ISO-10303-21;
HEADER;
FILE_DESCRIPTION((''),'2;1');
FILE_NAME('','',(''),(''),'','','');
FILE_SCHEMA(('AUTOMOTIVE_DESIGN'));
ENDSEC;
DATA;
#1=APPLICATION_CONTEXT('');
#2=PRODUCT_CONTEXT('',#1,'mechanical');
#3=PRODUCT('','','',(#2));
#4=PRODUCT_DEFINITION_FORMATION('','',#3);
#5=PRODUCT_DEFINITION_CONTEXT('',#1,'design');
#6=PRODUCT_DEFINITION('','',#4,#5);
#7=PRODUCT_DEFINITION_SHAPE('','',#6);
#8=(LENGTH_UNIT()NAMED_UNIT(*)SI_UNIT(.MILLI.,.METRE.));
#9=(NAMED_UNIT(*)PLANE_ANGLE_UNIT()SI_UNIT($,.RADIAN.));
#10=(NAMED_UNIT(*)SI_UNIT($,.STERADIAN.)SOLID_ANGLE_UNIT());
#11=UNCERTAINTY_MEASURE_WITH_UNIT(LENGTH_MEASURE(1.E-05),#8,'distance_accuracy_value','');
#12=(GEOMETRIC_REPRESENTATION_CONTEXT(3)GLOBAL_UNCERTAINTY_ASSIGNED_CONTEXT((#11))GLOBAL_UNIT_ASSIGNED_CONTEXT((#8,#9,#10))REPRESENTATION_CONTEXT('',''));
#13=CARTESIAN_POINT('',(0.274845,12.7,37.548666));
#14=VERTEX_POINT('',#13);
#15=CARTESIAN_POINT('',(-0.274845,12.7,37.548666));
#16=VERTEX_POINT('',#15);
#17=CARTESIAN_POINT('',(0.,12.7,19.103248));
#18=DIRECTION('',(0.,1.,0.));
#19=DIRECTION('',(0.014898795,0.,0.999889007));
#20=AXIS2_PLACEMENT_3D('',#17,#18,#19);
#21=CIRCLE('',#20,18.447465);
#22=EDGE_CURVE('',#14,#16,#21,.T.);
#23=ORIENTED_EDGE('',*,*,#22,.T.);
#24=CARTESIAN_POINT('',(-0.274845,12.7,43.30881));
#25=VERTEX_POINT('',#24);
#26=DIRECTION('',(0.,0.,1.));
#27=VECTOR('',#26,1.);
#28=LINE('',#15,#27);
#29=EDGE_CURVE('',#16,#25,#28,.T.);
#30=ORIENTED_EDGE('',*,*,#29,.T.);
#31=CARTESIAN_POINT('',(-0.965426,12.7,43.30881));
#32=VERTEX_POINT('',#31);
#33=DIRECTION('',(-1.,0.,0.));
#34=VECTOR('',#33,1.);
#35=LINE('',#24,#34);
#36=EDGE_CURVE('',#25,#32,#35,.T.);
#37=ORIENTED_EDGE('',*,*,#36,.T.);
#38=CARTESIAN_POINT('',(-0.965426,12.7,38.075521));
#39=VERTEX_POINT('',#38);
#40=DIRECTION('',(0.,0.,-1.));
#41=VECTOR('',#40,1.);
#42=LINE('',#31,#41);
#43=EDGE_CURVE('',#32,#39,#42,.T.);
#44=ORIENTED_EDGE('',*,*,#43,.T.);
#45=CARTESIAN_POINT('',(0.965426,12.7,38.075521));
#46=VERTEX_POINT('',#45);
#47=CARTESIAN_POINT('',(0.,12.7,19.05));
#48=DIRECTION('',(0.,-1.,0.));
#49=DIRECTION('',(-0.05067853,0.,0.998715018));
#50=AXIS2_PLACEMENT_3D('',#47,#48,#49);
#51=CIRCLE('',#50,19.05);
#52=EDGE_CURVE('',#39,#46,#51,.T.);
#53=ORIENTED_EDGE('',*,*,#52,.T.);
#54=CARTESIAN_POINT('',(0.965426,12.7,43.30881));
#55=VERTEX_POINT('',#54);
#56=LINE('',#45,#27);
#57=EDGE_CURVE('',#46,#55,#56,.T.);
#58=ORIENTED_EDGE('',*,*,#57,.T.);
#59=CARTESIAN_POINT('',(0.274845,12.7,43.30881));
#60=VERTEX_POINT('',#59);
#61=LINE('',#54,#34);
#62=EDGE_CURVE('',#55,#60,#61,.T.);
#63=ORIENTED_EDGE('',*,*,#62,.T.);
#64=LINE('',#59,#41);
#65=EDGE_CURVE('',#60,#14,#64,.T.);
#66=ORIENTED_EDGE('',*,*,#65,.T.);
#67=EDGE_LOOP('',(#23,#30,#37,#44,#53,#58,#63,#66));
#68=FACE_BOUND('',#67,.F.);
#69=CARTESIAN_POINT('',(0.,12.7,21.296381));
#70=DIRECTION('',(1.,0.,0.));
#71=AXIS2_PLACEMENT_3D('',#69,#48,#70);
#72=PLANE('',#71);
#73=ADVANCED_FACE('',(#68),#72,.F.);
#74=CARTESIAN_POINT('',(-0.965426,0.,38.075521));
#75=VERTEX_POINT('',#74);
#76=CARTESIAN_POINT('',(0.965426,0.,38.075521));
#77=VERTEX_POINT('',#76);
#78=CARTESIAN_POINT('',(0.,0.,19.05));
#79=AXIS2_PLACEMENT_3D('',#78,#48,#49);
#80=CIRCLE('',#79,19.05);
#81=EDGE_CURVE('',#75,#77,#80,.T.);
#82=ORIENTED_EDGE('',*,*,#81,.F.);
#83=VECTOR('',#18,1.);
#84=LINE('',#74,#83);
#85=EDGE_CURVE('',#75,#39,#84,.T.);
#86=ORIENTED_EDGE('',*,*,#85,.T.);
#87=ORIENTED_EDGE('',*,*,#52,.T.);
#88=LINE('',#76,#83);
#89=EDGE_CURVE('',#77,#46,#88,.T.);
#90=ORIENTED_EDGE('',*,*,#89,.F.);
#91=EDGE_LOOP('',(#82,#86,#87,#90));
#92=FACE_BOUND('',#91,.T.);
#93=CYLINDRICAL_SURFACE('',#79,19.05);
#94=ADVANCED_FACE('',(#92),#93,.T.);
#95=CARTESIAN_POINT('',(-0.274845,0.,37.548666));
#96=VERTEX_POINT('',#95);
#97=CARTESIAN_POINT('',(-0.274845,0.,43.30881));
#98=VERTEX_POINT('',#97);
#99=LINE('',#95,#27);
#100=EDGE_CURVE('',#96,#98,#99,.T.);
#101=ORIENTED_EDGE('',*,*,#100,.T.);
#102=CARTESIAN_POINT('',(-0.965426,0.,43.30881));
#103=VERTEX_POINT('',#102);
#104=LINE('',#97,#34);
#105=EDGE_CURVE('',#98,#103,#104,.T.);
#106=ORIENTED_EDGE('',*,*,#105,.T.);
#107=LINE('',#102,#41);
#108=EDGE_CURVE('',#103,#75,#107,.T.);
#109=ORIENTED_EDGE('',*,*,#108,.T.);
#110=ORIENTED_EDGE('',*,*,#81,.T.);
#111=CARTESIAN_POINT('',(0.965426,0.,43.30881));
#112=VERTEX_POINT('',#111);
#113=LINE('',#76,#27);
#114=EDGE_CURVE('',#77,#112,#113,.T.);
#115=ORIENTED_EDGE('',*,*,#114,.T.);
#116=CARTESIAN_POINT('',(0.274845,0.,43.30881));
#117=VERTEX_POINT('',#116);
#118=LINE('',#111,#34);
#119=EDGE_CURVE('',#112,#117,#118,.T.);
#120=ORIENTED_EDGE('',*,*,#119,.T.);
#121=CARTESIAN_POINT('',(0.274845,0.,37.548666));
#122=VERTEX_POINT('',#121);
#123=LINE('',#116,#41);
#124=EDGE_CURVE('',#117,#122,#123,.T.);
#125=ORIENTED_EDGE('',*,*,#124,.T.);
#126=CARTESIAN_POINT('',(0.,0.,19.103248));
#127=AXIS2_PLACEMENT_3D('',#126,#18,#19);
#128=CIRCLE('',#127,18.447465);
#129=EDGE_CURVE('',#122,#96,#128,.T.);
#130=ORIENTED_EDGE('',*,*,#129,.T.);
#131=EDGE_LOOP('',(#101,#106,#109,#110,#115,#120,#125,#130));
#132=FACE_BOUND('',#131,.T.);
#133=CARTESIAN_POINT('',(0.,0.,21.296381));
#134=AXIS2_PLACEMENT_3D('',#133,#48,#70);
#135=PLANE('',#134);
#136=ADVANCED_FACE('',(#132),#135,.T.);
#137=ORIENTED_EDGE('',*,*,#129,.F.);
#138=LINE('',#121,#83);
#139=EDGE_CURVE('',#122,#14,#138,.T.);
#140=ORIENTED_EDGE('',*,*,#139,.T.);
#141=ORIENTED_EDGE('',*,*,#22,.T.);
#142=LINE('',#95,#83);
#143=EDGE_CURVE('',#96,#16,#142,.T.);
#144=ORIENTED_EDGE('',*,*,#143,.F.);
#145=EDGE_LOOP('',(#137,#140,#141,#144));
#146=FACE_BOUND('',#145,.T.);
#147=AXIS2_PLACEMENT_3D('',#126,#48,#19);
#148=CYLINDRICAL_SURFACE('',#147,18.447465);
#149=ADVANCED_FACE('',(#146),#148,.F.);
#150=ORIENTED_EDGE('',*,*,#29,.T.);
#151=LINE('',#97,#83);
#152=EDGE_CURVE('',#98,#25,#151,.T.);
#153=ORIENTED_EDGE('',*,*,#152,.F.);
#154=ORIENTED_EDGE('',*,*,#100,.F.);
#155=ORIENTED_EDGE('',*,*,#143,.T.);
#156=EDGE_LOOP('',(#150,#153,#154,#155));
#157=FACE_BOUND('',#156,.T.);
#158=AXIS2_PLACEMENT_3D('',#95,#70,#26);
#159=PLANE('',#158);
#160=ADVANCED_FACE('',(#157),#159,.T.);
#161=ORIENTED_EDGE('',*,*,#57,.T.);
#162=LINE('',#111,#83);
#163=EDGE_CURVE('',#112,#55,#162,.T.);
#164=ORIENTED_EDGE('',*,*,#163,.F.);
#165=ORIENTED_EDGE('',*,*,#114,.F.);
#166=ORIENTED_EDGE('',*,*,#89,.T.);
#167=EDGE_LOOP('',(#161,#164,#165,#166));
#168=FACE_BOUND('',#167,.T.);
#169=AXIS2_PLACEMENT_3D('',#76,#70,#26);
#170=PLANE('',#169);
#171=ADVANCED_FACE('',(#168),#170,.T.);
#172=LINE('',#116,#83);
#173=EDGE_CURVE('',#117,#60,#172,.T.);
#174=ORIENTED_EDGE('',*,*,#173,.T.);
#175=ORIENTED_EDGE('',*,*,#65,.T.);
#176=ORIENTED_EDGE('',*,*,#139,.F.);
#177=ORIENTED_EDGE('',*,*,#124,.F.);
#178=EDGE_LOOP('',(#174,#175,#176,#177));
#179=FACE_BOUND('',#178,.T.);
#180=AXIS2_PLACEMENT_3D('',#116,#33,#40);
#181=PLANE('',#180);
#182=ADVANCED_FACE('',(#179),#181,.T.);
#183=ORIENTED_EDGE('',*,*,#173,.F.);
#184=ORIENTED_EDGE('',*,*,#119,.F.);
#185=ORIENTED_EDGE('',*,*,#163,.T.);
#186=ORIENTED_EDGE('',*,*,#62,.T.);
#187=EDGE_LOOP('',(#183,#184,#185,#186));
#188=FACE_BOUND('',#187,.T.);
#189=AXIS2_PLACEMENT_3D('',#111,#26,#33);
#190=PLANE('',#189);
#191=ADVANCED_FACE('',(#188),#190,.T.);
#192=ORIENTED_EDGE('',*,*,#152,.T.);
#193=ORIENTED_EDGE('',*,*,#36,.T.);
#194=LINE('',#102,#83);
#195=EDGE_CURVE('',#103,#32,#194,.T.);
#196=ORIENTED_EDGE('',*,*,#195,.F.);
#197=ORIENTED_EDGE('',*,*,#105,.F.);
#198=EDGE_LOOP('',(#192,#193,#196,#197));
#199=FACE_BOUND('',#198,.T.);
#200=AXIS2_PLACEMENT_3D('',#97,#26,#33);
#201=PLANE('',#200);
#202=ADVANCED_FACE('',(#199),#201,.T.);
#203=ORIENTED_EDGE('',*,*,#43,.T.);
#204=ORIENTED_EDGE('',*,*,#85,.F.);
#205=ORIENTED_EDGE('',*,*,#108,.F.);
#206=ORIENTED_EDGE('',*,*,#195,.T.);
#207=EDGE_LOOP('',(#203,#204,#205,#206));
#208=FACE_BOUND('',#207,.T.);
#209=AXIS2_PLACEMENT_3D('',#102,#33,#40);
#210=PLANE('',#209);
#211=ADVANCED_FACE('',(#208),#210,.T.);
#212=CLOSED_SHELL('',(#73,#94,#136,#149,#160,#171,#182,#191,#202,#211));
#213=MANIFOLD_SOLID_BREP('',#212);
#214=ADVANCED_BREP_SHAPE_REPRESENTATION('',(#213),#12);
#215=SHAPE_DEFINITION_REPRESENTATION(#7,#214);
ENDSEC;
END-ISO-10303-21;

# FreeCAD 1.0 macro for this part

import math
import FreeCAD as App
import Part
import Sketcher

V = App.Vector
Q = App.Units.Quantity

doc = App.newDocument("Part")
body = doc.addObject("PartDesign::Body", "Body")

sketch1 = body.newObject("Sketcher::SketchObject", "Sketch")
sketch1.AttachmentSupport = (doc.getObject("XZ_Plane"), [""])
sketch1.MapMode = "FlatFace"
sketch1.addGeometry([
    Part.LineSegment(V(-0.3, 37.5, 0), V(-0.3, 43.3, 0)),
    Part.LineSegment(V(-0.3, 43.3, 0), V(-1, 43.3, 0)),
    Part.LineSegment(V(-1, 43.3, 0), V(-1, 38.1, 0)),
    Part.ArcOfCircle(Part.Circle(V(0, 19, 0), V(0, 0, 1), 19), math.radians(93), math.radians(447)),
    Part.LineSegment(V(1, 38.1, 0), V(1, 43.3, 0)),
    Part.LineSegment(V(1, 43.3, 0), V(0.3, 43.3, 0)),
    Part.LineSegment(V(0.3, 43.3, 0), V(0.3, 37.5, 0)),
    Part.ArcOfCircle(Part.Circle(V(0, 19.1, 0), V(0, 0, 1), 18.4), math.radians(91), math.radians(449)),
], False)
sketch1.addConstraint([
    Sketcher.Constraint("Coincident", 0, 2, 1, 1),
    Sketcher.Constraint("Coincident", 1, 2, 2, 1),
    Sketcher.Constraint("Coincident", 2, 2, 3, 1),
    Sketcher.Constraint("Coincident", 3, 2, 4, 1),
    Sketcher.Constraint("Coincident", 4, 2, 5, 1),
    Sketcher.Constraint("Coincident", 5, 2, 6, 1),
    Sketcher.Constraint("Coincident", 6, 2, 7, 2),
    Sketcher.Constraint("Coincident", 7, 1, 0, 1),
    Sketcher.Constraint("Vertical", 0),
    Sketcher.Constraint("Horizontal", 1),
    Sketcher.Constraint("Vertical", 2),
    Sketcher.Constraint("Vertical", 4),
    Sketcher.Constraint("Horizontal", 5),
    Sketcher.Constraint("Vertical", 6),
    Sketcher.Constraint("Symmetric", 2, 2, 3, 2, -2),
    Sketcher.Constraint("Symmetric", 0, 2, 5, 2, -2),
    Sketcher.Constraint("PointOnObject", 7, 3, -2),
    Sketcher.Constraint("Radius", 3, Q("0.75 in")),
    Sketcher.Constraint("DistanceY", -1, 1, 3, 3, Q("0.75 in")),
    Sketcher.Constraint("Radius", 7, 18.447465),
    Sketcher.Constraint("DistanceX", 1, 2, 1, 1, 0.690581),
    Sketcher.Constraint("DistanceY", 2, 2, 2, 1, 5.233289),
    Sketcher.Constraint("DistanceY", 0, 1, 0, 2, 5.760144),
    Sketcher.Constraint("DistanceY", -1, 1, 7, 3, 19.103248),
])
pad1 = body.newObject("PartDesign::Pad", "Pad")
pad1.Profile = sketch1
pad1.Length = Q("0.5 in")
pad1.Reversed = True

doc.recompute()
